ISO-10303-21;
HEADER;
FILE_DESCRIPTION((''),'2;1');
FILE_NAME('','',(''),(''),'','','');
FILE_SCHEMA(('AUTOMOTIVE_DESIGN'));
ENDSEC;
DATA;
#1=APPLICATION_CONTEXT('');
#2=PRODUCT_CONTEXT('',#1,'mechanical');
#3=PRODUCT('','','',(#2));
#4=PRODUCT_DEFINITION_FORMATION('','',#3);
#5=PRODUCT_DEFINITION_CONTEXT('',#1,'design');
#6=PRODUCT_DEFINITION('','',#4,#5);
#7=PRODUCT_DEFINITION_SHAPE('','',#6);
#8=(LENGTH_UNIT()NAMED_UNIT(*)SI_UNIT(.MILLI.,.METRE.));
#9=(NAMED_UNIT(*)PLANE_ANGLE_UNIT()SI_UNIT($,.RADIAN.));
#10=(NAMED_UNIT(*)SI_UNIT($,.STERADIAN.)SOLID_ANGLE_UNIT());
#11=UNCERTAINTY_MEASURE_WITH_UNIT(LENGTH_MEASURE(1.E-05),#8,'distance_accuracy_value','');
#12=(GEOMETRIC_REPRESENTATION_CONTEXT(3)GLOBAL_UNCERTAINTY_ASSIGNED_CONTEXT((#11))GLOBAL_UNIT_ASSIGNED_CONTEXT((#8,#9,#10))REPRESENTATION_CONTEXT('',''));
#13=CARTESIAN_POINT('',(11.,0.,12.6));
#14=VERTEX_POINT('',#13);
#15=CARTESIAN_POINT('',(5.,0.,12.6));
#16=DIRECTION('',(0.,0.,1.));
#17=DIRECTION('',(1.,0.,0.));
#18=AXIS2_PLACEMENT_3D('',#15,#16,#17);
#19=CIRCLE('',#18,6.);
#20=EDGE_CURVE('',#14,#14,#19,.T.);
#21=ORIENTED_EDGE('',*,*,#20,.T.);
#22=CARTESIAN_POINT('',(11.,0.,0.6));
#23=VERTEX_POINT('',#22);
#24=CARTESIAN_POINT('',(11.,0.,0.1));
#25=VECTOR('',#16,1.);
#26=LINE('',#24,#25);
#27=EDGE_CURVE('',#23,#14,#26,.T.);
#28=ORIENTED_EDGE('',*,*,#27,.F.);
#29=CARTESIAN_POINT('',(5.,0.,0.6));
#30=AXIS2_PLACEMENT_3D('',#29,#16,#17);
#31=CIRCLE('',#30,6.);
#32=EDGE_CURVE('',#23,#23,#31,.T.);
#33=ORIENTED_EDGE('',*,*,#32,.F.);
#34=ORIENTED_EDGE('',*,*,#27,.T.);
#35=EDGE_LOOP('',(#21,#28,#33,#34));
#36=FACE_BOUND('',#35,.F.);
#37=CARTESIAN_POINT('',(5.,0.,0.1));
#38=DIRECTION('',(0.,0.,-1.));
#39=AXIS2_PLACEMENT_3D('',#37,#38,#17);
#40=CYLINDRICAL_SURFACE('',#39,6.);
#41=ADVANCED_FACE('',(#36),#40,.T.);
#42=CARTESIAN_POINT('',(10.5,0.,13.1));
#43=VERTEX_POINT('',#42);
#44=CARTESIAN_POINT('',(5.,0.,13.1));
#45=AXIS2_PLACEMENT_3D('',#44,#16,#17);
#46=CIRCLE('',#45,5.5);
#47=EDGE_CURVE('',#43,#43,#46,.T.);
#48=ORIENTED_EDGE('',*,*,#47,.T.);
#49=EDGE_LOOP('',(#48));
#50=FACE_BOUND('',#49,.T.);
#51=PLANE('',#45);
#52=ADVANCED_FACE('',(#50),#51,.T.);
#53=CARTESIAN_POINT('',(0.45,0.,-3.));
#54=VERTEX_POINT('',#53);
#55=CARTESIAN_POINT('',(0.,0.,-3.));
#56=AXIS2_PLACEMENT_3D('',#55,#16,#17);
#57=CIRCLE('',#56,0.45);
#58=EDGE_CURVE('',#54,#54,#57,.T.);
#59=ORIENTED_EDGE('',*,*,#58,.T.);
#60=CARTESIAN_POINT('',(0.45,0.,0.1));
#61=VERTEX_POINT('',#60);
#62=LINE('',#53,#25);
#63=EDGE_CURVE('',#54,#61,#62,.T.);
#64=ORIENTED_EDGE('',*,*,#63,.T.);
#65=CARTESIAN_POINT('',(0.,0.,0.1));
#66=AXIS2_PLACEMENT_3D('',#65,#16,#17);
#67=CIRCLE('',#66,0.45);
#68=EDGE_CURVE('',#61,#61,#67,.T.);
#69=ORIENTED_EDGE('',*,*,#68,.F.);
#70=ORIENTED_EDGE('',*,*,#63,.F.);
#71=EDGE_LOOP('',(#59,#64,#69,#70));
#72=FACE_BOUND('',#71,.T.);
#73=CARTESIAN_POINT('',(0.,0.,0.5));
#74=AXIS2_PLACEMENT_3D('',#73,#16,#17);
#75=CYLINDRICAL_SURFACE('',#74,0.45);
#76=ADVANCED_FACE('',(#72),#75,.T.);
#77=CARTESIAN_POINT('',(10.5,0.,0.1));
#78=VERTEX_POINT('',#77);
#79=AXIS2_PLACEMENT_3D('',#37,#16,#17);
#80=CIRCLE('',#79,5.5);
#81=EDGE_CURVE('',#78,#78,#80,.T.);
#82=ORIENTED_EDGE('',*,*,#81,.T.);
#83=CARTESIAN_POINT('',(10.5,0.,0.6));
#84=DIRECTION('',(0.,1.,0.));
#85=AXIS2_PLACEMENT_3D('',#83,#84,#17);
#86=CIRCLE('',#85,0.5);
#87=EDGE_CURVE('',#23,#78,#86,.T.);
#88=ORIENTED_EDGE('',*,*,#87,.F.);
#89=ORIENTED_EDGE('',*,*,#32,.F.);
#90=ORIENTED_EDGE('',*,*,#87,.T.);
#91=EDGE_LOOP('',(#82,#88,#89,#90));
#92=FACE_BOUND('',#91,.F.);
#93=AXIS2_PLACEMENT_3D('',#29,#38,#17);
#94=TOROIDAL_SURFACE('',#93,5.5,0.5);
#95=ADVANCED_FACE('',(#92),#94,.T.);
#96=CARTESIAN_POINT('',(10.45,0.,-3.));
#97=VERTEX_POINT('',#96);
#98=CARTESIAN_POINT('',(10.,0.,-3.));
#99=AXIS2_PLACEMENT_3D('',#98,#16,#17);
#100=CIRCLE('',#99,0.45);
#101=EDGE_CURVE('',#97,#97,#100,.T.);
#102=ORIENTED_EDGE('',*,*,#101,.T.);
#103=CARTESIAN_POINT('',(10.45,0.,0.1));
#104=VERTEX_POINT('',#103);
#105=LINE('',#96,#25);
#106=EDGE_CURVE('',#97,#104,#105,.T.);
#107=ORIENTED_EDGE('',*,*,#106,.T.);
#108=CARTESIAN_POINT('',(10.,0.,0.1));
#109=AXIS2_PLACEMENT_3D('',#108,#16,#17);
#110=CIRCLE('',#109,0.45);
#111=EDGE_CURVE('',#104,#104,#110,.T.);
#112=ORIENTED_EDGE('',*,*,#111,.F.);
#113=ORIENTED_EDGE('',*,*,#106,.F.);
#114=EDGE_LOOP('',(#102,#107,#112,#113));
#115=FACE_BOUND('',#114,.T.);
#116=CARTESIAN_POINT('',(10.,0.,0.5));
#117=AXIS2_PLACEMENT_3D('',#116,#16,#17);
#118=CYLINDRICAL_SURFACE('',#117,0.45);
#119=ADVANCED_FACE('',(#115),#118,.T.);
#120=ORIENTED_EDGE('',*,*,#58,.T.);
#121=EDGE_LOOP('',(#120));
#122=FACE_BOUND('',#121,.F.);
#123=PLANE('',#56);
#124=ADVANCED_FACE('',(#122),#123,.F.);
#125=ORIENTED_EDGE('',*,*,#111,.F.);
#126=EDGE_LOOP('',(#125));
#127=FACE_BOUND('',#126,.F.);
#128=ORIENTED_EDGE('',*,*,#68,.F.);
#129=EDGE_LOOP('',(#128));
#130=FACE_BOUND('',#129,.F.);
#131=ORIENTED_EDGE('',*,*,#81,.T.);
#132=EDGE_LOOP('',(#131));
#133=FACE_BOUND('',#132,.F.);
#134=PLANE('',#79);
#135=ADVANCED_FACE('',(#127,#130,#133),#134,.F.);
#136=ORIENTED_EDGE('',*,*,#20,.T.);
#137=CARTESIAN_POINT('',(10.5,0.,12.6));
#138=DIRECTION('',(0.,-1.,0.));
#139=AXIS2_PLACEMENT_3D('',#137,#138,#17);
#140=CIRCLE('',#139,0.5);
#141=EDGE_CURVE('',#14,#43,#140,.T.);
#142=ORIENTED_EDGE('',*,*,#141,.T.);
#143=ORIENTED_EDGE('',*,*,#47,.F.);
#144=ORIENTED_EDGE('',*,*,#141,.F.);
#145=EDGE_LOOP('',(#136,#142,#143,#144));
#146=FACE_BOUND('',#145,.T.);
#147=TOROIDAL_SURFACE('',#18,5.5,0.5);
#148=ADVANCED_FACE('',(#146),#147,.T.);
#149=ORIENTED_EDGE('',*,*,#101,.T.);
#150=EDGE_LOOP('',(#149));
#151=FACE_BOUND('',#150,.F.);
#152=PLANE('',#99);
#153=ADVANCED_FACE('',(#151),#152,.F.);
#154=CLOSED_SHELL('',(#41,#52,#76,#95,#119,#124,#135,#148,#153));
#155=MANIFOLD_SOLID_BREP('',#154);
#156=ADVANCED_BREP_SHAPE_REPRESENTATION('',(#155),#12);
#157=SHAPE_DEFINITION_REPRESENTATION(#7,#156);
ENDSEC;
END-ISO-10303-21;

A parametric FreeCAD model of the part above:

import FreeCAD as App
import Part
import Sketcher


def edges_at(feature, points):
    """Names of the edges that pass closest to the given points."""
    edges = feature.Shape.Edges
    near = lambda p: min(range(len(edges)), key=lambda i: edges[i].distToShape(Part.Vertex(*p))[0])
    return sorted({f"Edge{near(p) + 1}" for p in points})

doc = App.newDocument("Part")
body = doc.addObject("PartDesign::Body", "Body")
body.AllowCompound = True

sketch1 = body.newObject("Sketcher::SketchObject", "Sketch")
sketch1.AttachmentSupport = (doc.getObject("XY_Plane"), [""])
sketch1.MapMode = "FlatFace"
sketch1.AttachmentOffset = App.Placement(App.Vector(0, 0, 0.5), App.Rotation())
sketch1.addGeometry(Part.Circle(App.Vector(0, 0, 0), App.Vector(0, 0, 1), 0.45), False)
sketch1.addGeometry(Part.Circle(App.Vector(10, 0, 0), App.Vector(0, 0, 1), 0.45), False)
sketch1.addConstraint(Sketcher.Constraint("Coincident", 0, 3, -1, 1))
sketch1.addConstraint(Sketcher.Constraint("Equal", 0, 1))
sketch1.addConstraint(Sketcher.Constraint("PointOnObject", 1, 3, -1))
sketch1.addConstraint(Sketcher.Constraint("Diameter", 0, 0.9))
sketch1.addConstraint(Sketcher.Constraint("DistanceX", -1, 1, 1, 3, 10.0))
pad1 = body.newObject("PartDesign::Pad", "Pad")
pad1.Profile = sketch1
pad1.Type = "TwoLengths"
pad1.Length = 6.5
pad1.Length2 = 3.5
body2 = doc.addObject("PartDesign::Body", "Body001")

sketch2 = body2.newObject("Sketcher::SketchObject", "Sketch001")
sketch2.AttachmentSupport = (doc.getObject("XY_Plane001"), [""])
sketch2.MapMode = "FlatFace"
sketch2.AttachmentOffset = App.Placement(App.Vector(0, 0, 0.1), App.Rotation())
sketch2.addGeometry(Part.Circle(App.Vector(5, 0, 0), App.Vector(0, 0, 1), 6), False)
sketch2.addConstraint(Sketcher.Constraint("PointOnObject", 0, 3, -1))
sketch2.addConstraint(Sketcher.Constraint("Diameter", 0, 12.0))
sketch2.addConstraint(Sketcher.Constraint("DistanceX", -1, 1, 0, 3, 5.0))
pad2 = body2.newObject("PartDesign::Pad", "Pad001")
pad2.Profile = sketch2
pad2.Length = 13
doc.recompute()

fillet = body2.newObject("PartDesign::Fillet", "Fillet")
fillet.Base = (pad2, edges_at(pad2, [(-1, 0, 0.1), (-1, 0, 13.1)]))
fillet.Radius = 0.5
doc.recompute()

boolean = body2.newObject("PartDesign::Boolean", "Boolean")
boolean.Type = "Fuse"
boolean.addObjects([body])

doc.recompute()
